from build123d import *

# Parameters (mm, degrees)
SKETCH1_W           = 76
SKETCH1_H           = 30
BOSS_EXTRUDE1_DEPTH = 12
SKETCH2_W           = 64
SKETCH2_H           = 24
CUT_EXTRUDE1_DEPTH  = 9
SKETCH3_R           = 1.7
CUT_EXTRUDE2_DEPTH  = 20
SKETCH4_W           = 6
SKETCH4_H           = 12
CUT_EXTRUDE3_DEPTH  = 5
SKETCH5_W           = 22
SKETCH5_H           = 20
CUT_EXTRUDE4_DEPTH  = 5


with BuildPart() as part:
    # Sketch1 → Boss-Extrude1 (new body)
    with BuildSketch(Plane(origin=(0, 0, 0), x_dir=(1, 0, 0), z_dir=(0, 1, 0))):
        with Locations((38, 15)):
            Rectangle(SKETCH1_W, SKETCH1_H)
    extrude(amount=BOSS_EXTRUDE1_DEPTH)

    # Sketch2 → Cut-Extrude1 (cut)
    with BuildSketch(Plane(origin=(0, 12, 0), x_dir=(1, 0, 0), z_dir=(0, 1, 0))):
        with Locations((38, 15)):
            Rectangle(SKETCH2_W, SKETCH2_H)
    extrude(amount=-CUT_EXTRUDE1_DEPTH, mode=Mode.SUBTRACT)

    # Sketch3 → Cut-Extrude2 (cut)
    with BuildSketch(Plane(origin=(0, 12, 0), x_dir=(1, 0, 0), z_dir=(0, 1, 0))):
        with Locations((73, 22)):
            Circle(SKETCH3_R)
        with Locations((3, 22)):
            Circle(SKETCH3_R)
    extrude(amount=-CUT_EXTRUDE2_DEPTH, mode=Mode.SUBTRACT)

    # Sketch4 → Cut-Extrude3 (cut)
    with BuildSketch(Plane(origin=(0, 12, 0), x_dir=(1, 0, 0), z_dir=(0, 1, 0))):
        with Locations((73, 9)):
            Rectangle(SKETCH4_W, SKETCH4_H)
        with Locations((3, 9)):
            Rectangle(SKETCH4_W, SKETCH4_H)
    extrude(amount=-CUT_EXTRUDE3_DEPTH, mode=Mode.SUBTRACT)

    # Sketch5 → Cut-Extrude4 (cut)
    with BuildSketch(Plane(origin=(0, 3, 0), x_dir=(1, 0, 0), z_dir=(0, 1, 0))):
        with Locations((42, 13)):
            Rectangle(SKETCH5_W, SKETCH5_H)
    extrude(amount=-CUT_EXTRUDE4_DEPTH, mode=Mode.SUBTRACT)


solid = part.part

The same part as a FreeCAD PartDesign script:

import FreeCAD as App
import Part
import Sketcher
from FreeCAD import Vector


def add_polygon(sketch, points):
    """Adds a closed chain of lines whose ends are joined by coincident constraints."""
    first, n = sketch.GeometryCount, len(points)
    for a, b in zip(points, points[1:] + points[:1]):
        sketch.addGeometry(Part.LineSegment(App.Vector(*a, 0), App.Vector(*b, 0)), False)
    for i in range(n):
        sketch.addConstraint(Sketcher.Constraint("Coincident", first + i, 2, first + (i + 1) % n, 1))

doc = App.newDocument("Part")
params = doc.addObject("Spreadsheet::Sheet", "Params")
for row, (alias, value) in enumerate([
    ("sketch1_width", "76 mm"),
    ("sketch1_height", "30 mm"),
    ("pad1_length", "12 mm"),
    ("sketch2_width", "64 mm"),
    ("sketch2_height", "24 mm"),
    ("pocket1_length", "9 mm"),
    ("sketch3_diameter", "3.4 mm"),
    ("pocket2_length", "20 mm"),
    ("sketch4_width", "6 mm"),
    ("sketch4_height", "12 mm"),
    ("pocket3_length", "5 mm"),
    ("sketch5_width", "22 mm"),
    ("sketch5_height", "20 mm"),
    ("pocket4_length", "5 mm"),
], start=1):
    params.set(f"A{row}", alias)
    params.set(f"B{row}", "=" + value)
    params.setAlias(f"B{row}", alias)

body = doc.addObject("PartDesign::Body", "Body")

sketch1 = doc.addObject("Sketcher::SketchObject", "Sketch")
body.addObject(sketch1)
sketch1.AttachmentSupport = (doc.XZ_Plane, [""])
sketch1.MapMode = "FlatFace"
add_polygon(sketch1, [(0, -30), (0, 0), (76, 0), (76, -30)])
sketch1.addConstraint([
    Sketcher.Constraint("Vertical", 0),
    Sketcher.Constraint("Horizontal", 1),
    Sketcher.Constraint("Vertical", 2),
    Sketcher.Constraint("Horizontal", 3),
    Sketcher.Constraint("Coincident", 0, 2, -1, 1),
    Sketcher.Constraint("DistanceX", 1, 1, 1, 2, 76.0),
    Sketcher.Constraint("DistanceY", 0, 1, 0, 2, 30.0),
])
sketch1.setExpression("Constraints[9]", "Params.sketch1_width")
sketch1.setExpression("Constraints[10]", "Params.sketch1_height")
pad1 = doc.addObject("PartDesign::Pad", "Pad")
body.addObject(pad1)
pad1.Profile = sketch1
pad1.setExpression("Length", "Params.pad1_length")
pad1.Reversed = True

sketch2 = doc.addObject("Sketcher::SketchObject", "Sketch001")
body.addObject(sketch2)
sketch2.AttachmentSupport = (doc.XZ_Plane, [""])
sketch2.MapMode = "FlatFace"
sketch2.AttachmentOffset = App.Placement(Vector(0, 0, -12), App.Rotation())
add_polygon(sketch2, [(6, -27), (6, -3), (70, -3), (70, -27)])
sketch2.addConstraint([
    Sketcher.Constraint("Vertical", 0),
    Sketcher.Constraint("Horizontal", 1),
    Sketcher.Constraint("Vertical", 2),
    Sketcher.Constraint("Horizontal", 3),
    Sketcher.Constraint("DistanceX", 1, 1, 1, 2, 64.0),
    Sketcher.Constraint("DistanceY", 0, 1, 0, 2, 24.0),
    Sketcher.Constraint("DistanceX", -1, 1, 0, 2, 6.0),
    Sketcher.Constraint("DistanceY", 0, 2, -1, 1, 3.0),
])
sketch2.setExpression("Constraints[8]", "Params.sketch2_width")
sketch2.setExpression("Constraints[9]", "Params.sketch2_height")
pocket1 = doc.addObject("PartDesign::Pocket", "Pocket")
body.addObject(pocket1)
pocket1.Profile = sketch2
pocket1.setExpression("Length", "Params.pocket1_length")
pocket1.Reversed = True

sketch3 = doc.addObject("Sketcher::SketchObject", "Sketch002")
body.addObject(sketch3)
sketch3.AttachmentSupport = (doc.XZ_Plane, [""])
sketch3.MapMode = "FlatFace"
sketch3.AttachmentOffset = App.Placement(Vector(0, 0, -12), App.Rotation())
sketch3.addGeometry([
    Part.Circle(Vector(73, -22, 0), Vector(0, 0, 1), 1.7),
    Part.Circle(Vector(3, -22, 0), Vector(0, 0, 1), 1.7),
], False)
sketch3.addConstraint([
    Sketcher.Constraint("Equal", 0, 1),
    Sketcher.Constraint("Horizontal", 0, 3, 1, 3),
    Sketcher.Constraint("Diameter", 0, 3.4),
    Sketcher.Constraint("DistanceX", -1, 1, 0, 3, 73.0),
    Sketcher.Constraint("DistanceY", 0, 3, -1, 1, 22.0),
    Sketcher.Constraint("DistanceX", -1, 1, 1, 3, 3.0),
])
sketch3.setExpression("Constraints[2]", "Params.sketch3_diameter")
pocket2 = doc.addObject("PartDesign::Pocket", "Pocket001")
body.addObject(pocket2)
pocket2.Profile = sketch3
pocket2.setExpression("Length", "Params.pocket2_length")
pocket2.Reversed = True

sketch4 = doc.addObject("Sketcher::SketchObject", "Sketch003")
body.addObject(sketch4)
sketch4.AttachmentSupport = (doc.XZ_Plane, [""])
sketch4.MapMode = "FlatFace"
sketch4.AttachmentOffset = App.Placement(Vector(0, 0, -12), App.Rotation())
add_polygon(sketch4, [(70, -15), (70, -3), (76, -3), (76, -15)])
add_polygon(sketch4, [(0, -15), (0, -3), (6, -3), (6, -15)])
sketch4.addConstraint([
    Sketcher.Constraint("Vertical", 0),
    Sketcher.Constraint("Horizontal", 1),
    Sketcher.Constraint("Vertical", 2),
    Sketcher.Constraint("Horizontal", 3),
    Sketcher.Constraint("Vertical", 4),
    Sketcher.Constraint("Horizontal", 5),
    Sketcher.Constraint("Vertical", 6),
    Sketcher.Constraint("Horizontal", 7),
    Sketcher.Constraint("PointOnObject", 4, 2, -2),
    Sketcher.Constraint("Horizontal", 1, 2, 4, 2),
    Sketcher.Constraint("Horizontal", 3, 2, 6, 2),
    Sketcher.Constraint("Equal", 3, 5),
    Sketcher.Constraint("DistanceX", 1, 1, 1, 2, 6.0),
    Sketcher.Constraint("DistanceY", 0, 1, 0, 2, 12.0),
    Sketcher.Constraint("DistanceX", -1, 1, 0, 2, 70.0),
    Sketcher.Constraint("DistanceY", 0, 2, -1, 1, 3.0),
])
sketch4.setExpression("Constraints[20]", "Params.sketch4_width")
sketch4.setExpression("Constraints[21]", "Params.sketch4_height")
pocket3 = doc.addObject("PartDesign::Pocket", "Pocket002")
body.addObject(pocket3)
pocket3.Profile = sketch4
pocket3.setExpression("Length", "Params.pocket3_length")
pocket3.Reversed = True

sketch5 = doc.addObject("Sketcher::SketchObject", "Sketch004")
body.addObject(sketch5)
sketch5.AttachmentSupport = (doc.XZ_Plane, [""])
sketch5.MapMode = "FlatFace"
sketch5.AttachmentOffset = App.Placement(Vector(0, 0, -3), App.Rotation())
add_polygon(sketch5, [(31, -23), (31, -3), (53, -3), (53, -23)])
sketch5.addConstraint([
    Sketcher.Constraint("Vertical", 0),
    Sketcher.Constraint("Horizontal", 1),
    Sketcher.Constraint("Vertical", 2),
    Sketcher.Constraint("Horizontal", 3),
    Sketcher.Constraint("DistanceX", 1, 1, 1, 2, 22.0),
    Sketcher.Constraint("DistanceY", 0, 1, 0, 2, 20.0),
    Sketcher.Constraint("DistanceX", -1, 1, 0, 2, 31.0),
    Sketcher.Constraint("DistanceY", 0, 2, -1, 1, 3.0),
])
sketch5.setExpression("Constraints[8]", "Params.sketch5_width")
sketch5.setExpression("Constraints[9]", "Params.sketch5_height")
pocket4 = doc.addObject("PartDesign::Pocket", "Pocket003")
body.addObject(pocket4)
pocket4.Profile = sketch5
pocket4.setExpression("Length", "Params.pocket4_length")
pocket4.Reversed = True

doc.recompute()
